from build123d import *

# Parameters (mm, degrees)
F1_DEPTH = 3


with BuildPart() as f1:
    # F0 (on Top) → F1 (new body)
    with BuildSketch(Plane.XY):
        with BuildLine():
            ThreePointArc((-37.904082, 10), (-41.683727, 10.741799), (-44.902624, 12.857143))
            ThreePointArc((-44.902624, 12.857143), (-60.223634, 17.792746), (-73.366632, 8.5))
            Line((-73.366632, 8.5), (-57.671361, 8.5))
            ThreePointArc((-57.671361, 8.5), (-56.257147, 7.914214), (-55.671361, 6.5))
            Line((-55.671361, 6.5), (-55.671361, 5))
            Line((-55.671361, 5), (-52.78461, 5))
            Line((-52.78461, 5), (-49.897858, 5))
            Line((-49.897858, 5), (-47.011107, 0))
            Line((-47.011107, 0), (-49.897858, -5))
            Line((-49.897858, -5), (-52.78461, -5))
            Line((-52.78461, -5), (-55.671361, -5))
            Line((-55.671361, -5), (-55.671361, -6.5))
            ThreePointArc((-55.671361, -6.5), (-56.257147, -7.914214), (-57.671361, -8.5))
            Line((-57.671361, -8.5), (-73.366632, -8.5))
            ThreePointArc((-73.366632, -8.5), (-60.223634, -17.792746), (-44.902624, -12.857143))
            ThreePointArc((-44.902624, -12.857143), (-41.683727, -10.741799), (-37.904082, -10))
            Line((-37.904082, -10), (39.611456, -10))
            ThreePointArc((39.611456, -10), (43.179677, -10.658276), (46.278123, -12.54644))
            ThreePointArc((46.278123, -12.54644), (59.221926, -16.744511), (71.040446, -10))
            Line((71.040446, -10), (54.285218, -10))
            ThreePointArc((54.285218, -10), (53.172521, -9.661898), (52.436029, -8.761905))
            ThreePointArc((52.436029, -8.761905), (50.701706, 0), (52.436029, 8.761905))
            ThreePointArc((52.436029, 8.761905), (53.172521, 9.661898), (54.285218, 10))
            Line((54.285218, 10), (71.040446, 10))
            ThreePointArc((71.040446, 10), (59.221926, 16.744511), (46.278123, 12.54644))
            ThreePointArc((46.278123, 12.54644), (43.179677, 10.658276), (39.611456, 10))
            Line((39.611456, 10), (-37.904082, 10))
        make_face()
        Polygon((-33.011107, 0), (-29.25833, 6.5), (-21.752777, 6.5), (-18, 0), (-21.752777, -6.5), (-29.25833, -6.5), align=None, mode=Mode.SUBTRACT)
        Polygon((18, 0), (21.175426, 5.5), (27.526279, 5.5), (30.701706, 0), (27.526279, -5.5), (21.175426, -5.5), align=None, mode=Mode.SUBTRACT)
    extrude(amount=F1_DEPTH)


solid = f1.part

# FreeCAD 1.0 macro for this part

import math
import FreeCAD as App
import Part
import Sketcher

V = App.Vector
Q = App.Units.Quantity

doc = App.newDocument("Part")
body = doc.addObject("PartDesign::Body", "Body")

sketch1 = body.newObject("Sketcher::SketchObject", "Sketch")
sketch1.AttachmentSupport = (doc.getObject("XY_Plane"), [""])
sketch1.MapMode = "FlatFace"
sketch1.addGeometry([
    Part.ArcOfCircle(Part.Circle(V(-37.9, 20, 0), V(0, 0, 1), 10), math.radians(-134), math.radians(-90)),
    Part.ArcOfCircle(Part.Circle(V(-57.5, 0, 0), V(0, 0, 1), 18), math.radians(46), math.radians(152)),
    Part.LineSegment(V(-73.4, 8.5, 0), V(-57.7, 8.5, 0)),
    Part.ArcOfCircle(Part.Circle(V(-57.7, 6.5, 0), V(0, 0, 1), 2), math.radians(0), math.radians(90)),
    Part.LineSegment(V(-55.7, 6.5, 0), V(-55.7, 5, 0)),
    Part.LineSegment(V(-55.7, 5, 0), V(-49.9, 5, 0)),
    Part.LineSegment(V(-49.9, 5, 0), V(-47, 0, 0)),
    Part.LineSegment(V(-47, 0, 0), V(-49.9, -5, 0)),
    Part.LineSegment(V(-49.9, -5, 0), V(-55.7, -5, 0)),
    Part.LineSegment(V(-55.7, -5, 0), V(-55.7, -6.5, 0)),
    Part.ArcOfCircle(Part.Circle(V(-57.7, -6.5, 0), V(0, 0, 1), 2), math.radians(-90), math.radians(0)),
    Part.LineSegment(V(-57.7, -8.5, 0), V(-73.4, -8.5, 0)),
    Part.ArcOfCircle(Part.Circle(V(-57.5, 0, 0), V(0, 0, 1), 18), math.radians(-152), math.radians(-46)),
    Part.ArcOfCircle(Part.Circle(V(-37.9, -20, 0), V(0, 0, 1), 10), math.radians(90), math.radians(134)),
    Part.LineSegment(V(-37.9, -10, 0), V(39.6, -10, 0)),
    Part.ArcOfCircle(Part.Circle(V(39.6, -20, 0), V(0, 0, 1), 10), math.radians(48), math.radians(90)),
    Part.ArcOfCircle(Part.Circle(V(57.5, 0, 0), V(0, 0, 1), 16.8), math.radians(-132), math.radians(-36)),
    Part.LineSegment(V(71, -10, 0), V(54.3, -10, 0)),
    Part.ArcOfCircle(Part.Circle(V(54.3, -8, 0), V(0, 0, 1), 2), math.radians(-158), math.radians(-90)),
    Part.ArcOfCircle(Part.Circle(V(73.7, 0, 0), V(0, 0, 1), 23), math.radians(158), math.radians(202)),
    Part.ArcOfCircle(Part.Circle(V(54.3, 8, 0), V(0, 0, 1), 2), math.radians(90), math.radians(158)),
    Part.LineSegment(V(54.3, 10, 0), V(71, 10, 0)),
    Part.ArcOfCircle(Part.Circle(V(57.5, 0, 0), V(0, 0, 1), 16.8), math.radians(36), math.radians(132)),
    Part.ArcOfCircle(Part.Circle(V(39.6, 20, 0), V(0, 0, 1), 10), math.radians(-90), math.radians(-48)),
    Part.LineSegment(V(39.6, 10, 0), V(-37.9, 10, 0)),
    Part.LineSegment(V(-29.3, -6.5, 0), V(-33, 0, 0)),
    Part.LineSegment(V(-33, 0, 0), V(-29.3, 6.5, 0)),
    Part.LineSegment(V(-29.3, 6.5, 0), V(-21.8, 6.5, 0)),
    Part.LineSegment(V(-21.8, 6.5, 0), V(-18, 0, 0)),
    Part.LineSegment(V(-18, 0, 0), V(-21.8, -6.5, 0)),
    Part.LineSegment(V(-21.8, -6.5, 0), V(-29.3, -6.5, 0)),
    Part.LineSegment(V(21.2, -5.5, 0), V(18, 0, 0)),
    Part.LineSegment(V(18, 0, 0), V(21.2, 5.5, 0)),
    Part.LineSegment(V(21.2, 5.5, 0), V(27.5, 5.5, 0)),
    Part.LineSegment(V(27.5, 5.5, 0), V(30.7, 0, 0)),
    Part.LineSegment(V(30.7, 0, 0), V(27.5, -5.5, 0)),
    Part.LineSegment(V(27.5, -5.5, 0), V(21.2, -5.5, 0)),
], False)
sketch1.addConstraint([
    Sketcher.Constraint("Tangent", 0, 1, 1, 1),
    Sketcher.Constraint("Coincident", 1, 2, 2, 1),
    Sketcher.Constraint("Tangent", 2, 2, 3, 2),
    Sketcher.Constraint("Tangent", 3, 1, 4, 1),
    Sketcher.Constraint("Coincident", 4, 2, 5, 1),
    Sketcher.Constraint("Coincident", 5, 2, 6, 1),
    Sketcher.Constraint("Coincident", 6, 2, 7, 1),
    Sketcher.Constraint("Coincident", 7, 2, 8, 1),
    Sketcher.Constraint("Coincident", 8, 2, 9, 1),
    Sketcher.Constraint("Tangent", 9, 2, 10, 2),
    Sketcher.Constraint("Tangent", 10, 1, 11, 1),
    Sketcher.Constraint("Coincident", 11, 2, 12, 1),
    Sketcher.Constraint("Tangent", 12, 2, 13, 2),
    Sketcher.Constraint("Tangent", 13, 1, 14, 1),
    Sketcher.Constraint("Tangent", 14, 2, 15, 2),
    Sketcher.Constraint("Tangent", 15, 1, 16, 1),
    Sketcher.Constraint("Coincident", 16, 2, 17, 1),
    Sketcher.Constraint("Tangent", 17, 2, 18, 2),
    Sketcher.Constraint("Tangent", 18, 1, 19, 2),
    Sketcher.Constraint("Tangent", 19, 1, 20, 2),
    Sketcher.Constraint("Tangent", 20, 1, 21, 1),
    Sketcher.Constraint("Coincident", 21, 2, 22, 1),
    Sketcher.Constraint("Tangent", 22, 2, 23, 2),
    Sketcher.Constraint("Tangent", 23, 1, 24, 1),
    Sketcher.Constraint("Tangent", 24, 2, 0, 2),
    Sketcher.Constraint("Coincident", 25, 2, 26, 1),
    Sketcher.Constraint("Coincident", 26, 2, 27, 1),
    Sketcher.Constraint("Coincident", 27, 2, 28, 1),
    Sketcher.Constraint("Coincident", 28, 2, 29, 1),
    Sketcher.Constraint("Coincident", 29, 2, 30, 1),
    Sketcher.Constraint("Coincident", 30, 2, 25, 1),
    Sketcher.Constraint("Coincident", 31, 2, 32, 1),
    Sketcher.Constraint("Coincident", 32, 2, 33, 1),
    Sketcher.Constraint("Coincident", 33, 2, 34, 1),
    Sketcher.Constraint("Coincident", 34, 2, 35, 1),
    Sketcher.Constraint("Coincident", 35, 2, 36, 1),
    Sketcher.Constraint("Coincident", 36, 2, 31, 1),
    Sketcher.Constraint("Horizontal", 2),
    Sketcher.Constraint("Vertical", 4),
    Sketcher.Constraint("Horizontal", 5),
    Sketcher.Constraint("Horizontal", 8),
    Sketcher.Constraint("Vertical", 9),
    Sketcher.Constraint("Horizontal", 11),
    Sketcher.Constraint("Horizontal", 14),
    Sketcher.Constraint("Horizontal", 17),
    Sketcher.Constraint("Horizontal", 21),
    Sketcher.Constraint("Horizontal", 24),
    Sketcher.Constraint("Horizontal", 27),
    Sketcher.Constraint("Horizontal", 30),
    Sketcher.Constraint("Horizontal", 33),
    Sketcher.Constraint("Horizontal", 36),
    Sketcher.Constraint("Coincident", 12, 3, 1, 3),
    Sketcher.Constraint("Coincident", 22, 3, 16, 3),
    Sketcher.Constraint("Equal", 3, 10),
    Sketcher.Constraint("Equal", 1, 12),
    Sketcher.Constraint("Equal", 0, 13),
    Sketcher.Constraint("Equal", 13, 15),
    Sketcher.Constraint("Equal", 10, 18),
    Sketcher.Constraint("Equal", 18, 20),
    Sketcher.Constraint("Equal", 16, 22),
    Sketcher.Constraint("Equal", 15, 23),
    Sketcher.Constraint("Symmetric", 1, 3, 16, 3, -1, 1),
    Sketcher.Constraint("Symmetric", 28, 2, 31, 2, -1, 1),
    Sketcher.Constraint("Symmetric", 3, 3, 10, 3, -1),
    Sketcher.Constraint("Symmetric", 0, 3, 13, 3, -1),
    Sketcher.Constraint("Symmetric", 18, 3, 20, 3, -1),
    Sketcher.Constraint("Symmetric", 5, 2, 7, 2, -1),
    Sketcher.Constraint("Symmetric", 27, 2, 29, 2, -1),
    Sketcher.Constraint("Symmetric", 33, 2, 35, 2, -1),
    Sketcher.Constraint("PointOnObject", 6, 2, -1),
    Sketcher.Constraint("PointOnObject", 25, 2, -1),
    Sketcher.Constraint("PointOnObject", 28, 2, -1),
    Sketcher.Constraint("PointOnObject", 34, 2, -1),
    Sketcher.Constraint("Parallel", 6, 25),
    Sketcher.Constraint("Parallel", 7, 26),
    Sketcher.Constraint("Parallel", 25, 28),
    Sketcher.Constraint("Parallel", 28, 31),
    Sketcher.Constraint("Parallel", 29, 32),
    Sketcher.Constraint("Parallel", 31, 34),
    Sketcher.Constraint("Horizontal", 14, 2, 16, 2),
    Sketcher.Constraint("Horizontal", 3, 1, 26, 2),
    Sketcher.Constraint("Radius", 1, 18.000001),
    Sketcher.Constraint("Radius", 3, 1.999999),
    Sketcher.Constraint("Radius", 19, 22.999999),
    Sketcher.Constraint("Angle", 6, Q("-60.000003 deg")),
    Sketcher.Constraint("DistanceY", 4, 2, 4, 1, 1.5),
    Sketcher.Constraint("DistanceY", 18, 3, -1, 1, 8.0),
    Sketcher.Constraint("DistanceY", -1, 1, 4, 2, 5.0),
    Sketcher.Constraint("DistanceX", 28, 2, -1, 1, 18.0),
    Sketcher.Constraint("DistanceY", 1, 3, 0, 3, 19.999999),
    Sketcher.Constraint("DistanceX", 12, 3, 16, 3, 115.0),
    Sketcher.Constraint("DistanceX", 6, 2, 25, 2, 14.0),
    Sketcher.Constraint("DistanceY", 35, 2, 33, 2, 11.0),
    Sketcher.Constraint("Radius", 16, 16.832816),
    Sketcher.Constraint("DistanceX", 2, 1, 2, 2, 15.695271),
    Sketcher.Constraint("DistanceX", 17, 2, 17, 1, 16.755228),
    Sketcher.Constraint("DistanceX", 3, 3, 5, 2, 7.773502),
    Sketcher.Constraint("DistanceX", 33, 1, 33, 2, 6.350853),
])
pad1 = body.newObject("PartDesign::Pad", "Pad")
pad1.Profile = sketch1
pad1.Length = 3

doc.recompute()
